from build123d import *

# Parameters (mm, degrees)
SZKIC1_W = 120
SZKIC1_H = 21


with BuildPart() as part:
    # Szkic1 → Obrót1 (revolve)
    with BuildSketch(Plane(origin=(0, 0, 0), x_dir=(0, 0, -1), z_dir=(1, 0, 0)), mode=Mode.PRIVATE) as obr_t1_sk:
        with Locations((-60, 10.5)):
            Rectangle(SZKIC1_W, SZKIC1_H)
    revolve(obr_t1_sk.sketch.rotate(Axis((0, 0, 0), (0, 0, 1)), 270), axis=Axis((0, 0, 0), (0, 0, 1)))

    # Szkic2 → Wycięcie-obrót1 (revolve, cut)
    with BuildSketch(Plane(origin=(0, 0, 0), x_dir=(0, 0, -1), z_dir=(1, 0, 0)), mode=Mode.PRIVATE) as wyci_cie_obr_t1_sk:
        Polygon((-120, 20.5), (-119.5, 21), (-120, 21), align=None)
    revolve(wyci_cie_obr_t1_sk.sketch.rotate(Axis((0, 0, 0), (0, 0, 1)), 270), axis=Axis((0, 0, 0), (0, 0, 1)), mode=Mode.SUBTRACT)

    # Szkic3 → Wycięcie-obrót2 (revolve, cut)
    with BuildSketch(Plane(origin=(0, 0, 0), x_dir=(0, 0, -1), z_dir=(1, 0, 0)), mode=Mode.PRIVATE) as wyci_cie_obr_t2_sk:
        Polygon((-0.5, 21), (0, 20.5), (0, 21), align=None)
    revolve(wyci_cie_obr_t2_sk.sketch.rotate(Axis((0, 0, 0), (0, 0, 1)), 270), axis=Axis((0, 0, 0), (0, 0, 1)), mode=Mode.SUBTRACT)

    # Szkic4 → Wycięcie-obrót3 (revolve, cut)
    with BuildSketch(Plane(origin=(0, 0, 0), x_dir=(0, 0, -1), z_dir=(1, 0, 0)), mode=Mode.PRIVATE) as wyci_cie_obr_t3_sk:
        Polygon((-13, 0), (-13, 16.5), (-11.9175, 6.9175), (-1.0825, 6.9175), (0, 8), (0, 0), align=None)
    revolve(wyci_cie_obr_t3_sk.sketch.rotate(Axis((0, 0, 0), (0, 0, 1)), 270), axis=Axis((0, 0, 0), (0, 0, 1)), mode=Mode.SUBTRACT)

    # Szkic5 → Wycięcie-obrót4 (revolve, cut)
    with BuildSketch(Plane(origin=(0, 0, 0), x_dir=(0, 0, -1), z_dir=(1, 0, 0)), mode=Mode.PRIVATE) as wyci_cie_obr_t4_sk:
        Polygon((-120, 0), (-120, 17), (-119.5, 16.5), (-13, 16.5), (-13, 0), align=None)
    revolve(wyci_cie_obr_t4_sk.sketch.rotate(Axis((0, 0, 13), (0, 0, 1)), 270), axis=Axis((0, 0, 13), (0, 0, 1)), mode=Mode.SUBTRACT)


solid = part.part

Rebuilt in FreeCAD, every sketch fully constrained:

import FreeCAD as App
import Part
import Sketcher
Q = App.Units.Quantity

doc = App.newDocument("Part")
body = doc.addObject("PartDesign::Body", "Body")

# Sketch on YZ plane
sketch1 = body.newObject("Sketcher::SketchObject", "Sketch")
sketch1.AttachmentSupport = (doc.getObject("YZ_Plane"), [""])
sketch1.MapMode = "FlatFace"
sketch1.addGeometry([
    Part.LineSegment(App.Vector(21, 120, 0), App.Vector(0, 120, 0)),
    Part.LineSegment(App.Vector(0, 120, 0), App.Vector(0, 0, 0)),
    Part.LineSegment(App.Vector(0, 0, 0), App.Vector(21, 0, 0)),
    Part.LineSegment(App.Vector(21, 0, 0), App.Vector(21, 120, 0)),
], False)
sketch1.addConstraint([
    Sketcher.Constraint("Coincident", 0, 2, 1, 1),
    Sketcher.Constraint("Coincident", 1, 2, 2, 1),
    Sketcher.Constraint("Coincident", 2, 2, 3, 1),
    Sketcher.Constraint("Coincident", 3, 2, 0, 1),
    Sketcher.Constraint("Horizontal", 0),
    Sketcher.Constraint("Vertical", 1),
    Sketcher.Constraint("Horizontal", 2),
    Sketcher.Constraint("Vertical", 3),
    Sketcher.Constraint("Coincident", 1, 2, -1, 1),
    Sketcher.Constraint("DistanceX", 0, 2, 0, 1, 21.0),
    Sketcher.Constraint("DistanceY", 1, 2, 1, 1, 120.0),
])
revolution = body.newObject("PartDesign::Revolution", "Revolution")
revolution.Profile = sketch1
revolution.ReferenceAxis = (sketch1, ["V_Axis"])
revolution.Angle = 360

# Sketch on YZ plane
sketch2 = body.newObject("Sketcher::SketchObject", "Sketch001")
sketch2.AttachmentSupport = (doc.getObject("YZ_Plane"), [""])
sketch2.MapMode = "FlatFace"
sketch2.addGeometry([
    Part.LineSegment(App.Vector(20.5, 120, 0), App.Vector(21, 119.5, 0)),
    Part.LineSegment(App.Vector(21, 119.5, 0), App.Vector(21, 120, 0)),
    Part.LineSegment(App.Vector(21, 120, 0), App.Vector(20.5, 120, 0)),
], False)
sketch2.addConstraint([
    Sketcher.Constraint("Coincident", 0, 2, 1, 1),
    Sketcher.Constraint("Coincident", 1, 2, 2, 1),
    Sketcher.Constraint("Coincident", 2, 2, 0, 1),
    Sketcher.Constraint("Vertical", 1),
    Sketcher.Constraint("Horizontal", 2),
    Sketcher.Constraint("Equal", 2, 1),
    Sketcher.Constraint("DistanceX", 2, 2, 2, 1, 0.5),
    Sketcher.Constraint("DistanceX", -1, 1, 0, 2, 21.0),
    Sketcher.Constraint("DistanceY", -1, 1, 1, 2, 120.0),
])
groove = body.newObject("PartDesign::Groove", "Groove")
groove.Profile = sketch2
groove.ReferenceAxis = (sketch2, ["V_Axis"])
groove.Angle = 360

# Sketch on YZ plane
sketch3 = body.newObject("Sketcher::SketchObject", "Sketch002")
sketch3.AttachmentSupport = (doc.getObject("YZ_Plane"), [""])
sketch3.MapMode = "FlatFace"
sketch3.addGeometry([
    Part.LineSegment(App.Vector(21, 0.5, 0), App.Vector(20.5, 0, 0)),
    Part.LineSegment(App.Vector(20.5, 0, 0), App.Vector(21, 0, 0)),
    Part.LineSegment(App.Vector(21, 0, 0), App.Vector(21, 0.5, 0)),
], False)
sketch3.addConstraint([
    Sketcher.Constraint("Coincident", 0, 2, 1, 1),
    Sketcher.Constraint("Coincident", 1, 2, 2, 1),
    Sketcher.Constraint("Coincident", 2, 2, 0, 1),
    Sketcher.Constraint("Horizontal", 1),
    Sketcher.Constraint("Vertical", 2),
    Sketcher.Constraint("PointOnObject", 0, 2, -1),
    Sketcher.Constraint("Equal", 1, 2),
    Sketcher.Constraint("DistanceX", 1, 1, 1, 2, 0.5),
    Sketcher.Constraint("DistanceX", -1, 1, 1, 2, 21.0),
])
groove2 = body.newObject("PartDesign::Groove", "Groove001")
groove2.Profile = sketch3
groove2.ReferenceAxis = (sketch3, ["V_Axis"])
groove2.Angle = 360

# Sketch on YZ plane
sketch4 = body.newObject("Sketcher::SketchObject", "Sketch003")
sketch4.AttachmentSupport = (doc.getObject("YZ_Plane"), [""])
sketch4.MapMode = "FlatFace"
sketch4.addGeometry([
    Part.LineSegment(App.Vector(16.5, 13, 0), App.Vector(0, 13, 0)),  # 0
    Part.LineSegment(App.Vector(0, 13, 0), App.Vector(0, 0, 0)),  # 1
    Part.LineSegment(App.Vector(0, 0, 0), App.Vector(8, 0, 0)),  # 2
    Part.LineSegment(App.Vector(8, 0, 0), App.Vector(6.9, 1.1, 0)),  # 3
    Part.LineSegment(App.Vector(6.9, 1.1, 0), App.Vector(6.9, 11.9, 0)),  # 4
    Part.LineSegment(App.Vector(6.9, 11.9, 0), App.Vector(16.5, 13, 0)),  # 5
], False)
sketch4.addConstraint([
    Sketcher.Constraint("Coincident", 0, 2, 1, 1),
    Sketcher.Constraint("Coincident", 1, 2, 2, 1),
    Sketcher.Constraint("Coincident", 2, 2, 3, 1),
    Sketcher.Constraint("Coincident", 3, 2, 4, 1),
    Sketcher.Constraint("Coincident", 4, 2, 5, 1),
    Sketcher.Constraint("Coincident", 5, 2, 0, 1),
    Sketcher.Constraint("Horizontal", 0),
    Sketcher.Constraint("Vertical", 1),
    Sketcher.Constraint("Horizontal", 2),
    Sketcher.Constraint("Vertical", 4),
    Sketcher.Constraint("Coincident", 1, 2, -1, 1),
    Sketcher.Constraint("DistanceX", 2, 1, 2, 2, 8.0),
    Sketcher.Constraint("DistanceY", 1, 2, 1, 1, 13.0),
    Sketcher.Constraint("Angle", 3, Q("135 deg")),
    Sketcher.Constraint("DistanceX", 0, 2, 0, 1, 16.5),
    Sketcher.Constraint("DistanceY", 4, 1, 4, 2, 10.835),
    Sketcher.Constraint("DistanceX", -1, 1, 3, 2, 6.9175),
])
groove3 = body.newObject("PartDesign::Groove", "Groove002")
groove3.Profile = sketch4
groove3.ReferenceAxis = (sketch4, ["V_Axis"])
groove3.Angle = 360

# Sketch on YZ plane
sketch5 = body.newObject("Sketcher::SketchObject", "Sketch004")
sketch5.AttachmentSupport = (doc.getObject("YZ_Plane"), [""])
sketch5.MapMode = "FlatFace"
sketch5.addGeometry([
    Part.LineSegment(App.Vector(17, 120, 0), App.Vector(0, 120, 0)),  # 0
    Part.LineSegment(App.Vector(0, 120, 0), App.Vector(0, 13, 0)),  # 1
    Part.LineSegment(App.Vector(0, 13, 0), App.Vector(16.5, 13, 0)),  # 2
    Part.LineSegment(App.Vector(16.5, 13, 0), App.Vector(16.5, 119.5, 0)),  # 3
    Part.LineSegment(App.Vector(16.5, 119.5, 0), App.Vector(17, 120, 0)),  # 4
], False)
sketch5.addConstraint([
    Sketcher.Constraint("Coincident", 0, 2, 1, 1),
    Sketcher.Constraint("Coincident", 1, 2, 2, 1),
    Sketcher.Constraint("Coincident", 2, 2, 3, 1),
    Sketcher.Constraint("Coincident", 3, 2, 4, 1),
    Sketcher.Constraint("Coincident", 4, 2, 0, 1),
    Sketcher.Constraint("Horizontal", 0),
    Sketcher.Constraint("Vertical", 1),
    Sketcher.Constraint("Horizontal", 2),
    Sketcher.Constraint("Vertical", 3),
    Sketcher.Constraint("PointOnObject", 0, 2, -2),
    Sketcher.Constraint("DistanceX", 0, 2, 0, 1, 17.0),
    Sketcher.Constraint("DistanceY", 1, 2, 1, 1, 107.0),
    Sketcher.Constraint("Angle", 4, Q("45 deg")),
    Sketcher.Constraint("DistanceX", 2, 1, 2, 2, 16.5),
    Sketcher.Constraint("DistanceY", -1, 1, 0, 2, 120.0),
])
groove4 = body.newObject("PartDesign::Groove", "Groove003")
groove4.Profile = sketch5
groove4.ReferenceAxis = (sketch5, ["V_Axis"])
groove4.Angle = 360

doc.recompute()
